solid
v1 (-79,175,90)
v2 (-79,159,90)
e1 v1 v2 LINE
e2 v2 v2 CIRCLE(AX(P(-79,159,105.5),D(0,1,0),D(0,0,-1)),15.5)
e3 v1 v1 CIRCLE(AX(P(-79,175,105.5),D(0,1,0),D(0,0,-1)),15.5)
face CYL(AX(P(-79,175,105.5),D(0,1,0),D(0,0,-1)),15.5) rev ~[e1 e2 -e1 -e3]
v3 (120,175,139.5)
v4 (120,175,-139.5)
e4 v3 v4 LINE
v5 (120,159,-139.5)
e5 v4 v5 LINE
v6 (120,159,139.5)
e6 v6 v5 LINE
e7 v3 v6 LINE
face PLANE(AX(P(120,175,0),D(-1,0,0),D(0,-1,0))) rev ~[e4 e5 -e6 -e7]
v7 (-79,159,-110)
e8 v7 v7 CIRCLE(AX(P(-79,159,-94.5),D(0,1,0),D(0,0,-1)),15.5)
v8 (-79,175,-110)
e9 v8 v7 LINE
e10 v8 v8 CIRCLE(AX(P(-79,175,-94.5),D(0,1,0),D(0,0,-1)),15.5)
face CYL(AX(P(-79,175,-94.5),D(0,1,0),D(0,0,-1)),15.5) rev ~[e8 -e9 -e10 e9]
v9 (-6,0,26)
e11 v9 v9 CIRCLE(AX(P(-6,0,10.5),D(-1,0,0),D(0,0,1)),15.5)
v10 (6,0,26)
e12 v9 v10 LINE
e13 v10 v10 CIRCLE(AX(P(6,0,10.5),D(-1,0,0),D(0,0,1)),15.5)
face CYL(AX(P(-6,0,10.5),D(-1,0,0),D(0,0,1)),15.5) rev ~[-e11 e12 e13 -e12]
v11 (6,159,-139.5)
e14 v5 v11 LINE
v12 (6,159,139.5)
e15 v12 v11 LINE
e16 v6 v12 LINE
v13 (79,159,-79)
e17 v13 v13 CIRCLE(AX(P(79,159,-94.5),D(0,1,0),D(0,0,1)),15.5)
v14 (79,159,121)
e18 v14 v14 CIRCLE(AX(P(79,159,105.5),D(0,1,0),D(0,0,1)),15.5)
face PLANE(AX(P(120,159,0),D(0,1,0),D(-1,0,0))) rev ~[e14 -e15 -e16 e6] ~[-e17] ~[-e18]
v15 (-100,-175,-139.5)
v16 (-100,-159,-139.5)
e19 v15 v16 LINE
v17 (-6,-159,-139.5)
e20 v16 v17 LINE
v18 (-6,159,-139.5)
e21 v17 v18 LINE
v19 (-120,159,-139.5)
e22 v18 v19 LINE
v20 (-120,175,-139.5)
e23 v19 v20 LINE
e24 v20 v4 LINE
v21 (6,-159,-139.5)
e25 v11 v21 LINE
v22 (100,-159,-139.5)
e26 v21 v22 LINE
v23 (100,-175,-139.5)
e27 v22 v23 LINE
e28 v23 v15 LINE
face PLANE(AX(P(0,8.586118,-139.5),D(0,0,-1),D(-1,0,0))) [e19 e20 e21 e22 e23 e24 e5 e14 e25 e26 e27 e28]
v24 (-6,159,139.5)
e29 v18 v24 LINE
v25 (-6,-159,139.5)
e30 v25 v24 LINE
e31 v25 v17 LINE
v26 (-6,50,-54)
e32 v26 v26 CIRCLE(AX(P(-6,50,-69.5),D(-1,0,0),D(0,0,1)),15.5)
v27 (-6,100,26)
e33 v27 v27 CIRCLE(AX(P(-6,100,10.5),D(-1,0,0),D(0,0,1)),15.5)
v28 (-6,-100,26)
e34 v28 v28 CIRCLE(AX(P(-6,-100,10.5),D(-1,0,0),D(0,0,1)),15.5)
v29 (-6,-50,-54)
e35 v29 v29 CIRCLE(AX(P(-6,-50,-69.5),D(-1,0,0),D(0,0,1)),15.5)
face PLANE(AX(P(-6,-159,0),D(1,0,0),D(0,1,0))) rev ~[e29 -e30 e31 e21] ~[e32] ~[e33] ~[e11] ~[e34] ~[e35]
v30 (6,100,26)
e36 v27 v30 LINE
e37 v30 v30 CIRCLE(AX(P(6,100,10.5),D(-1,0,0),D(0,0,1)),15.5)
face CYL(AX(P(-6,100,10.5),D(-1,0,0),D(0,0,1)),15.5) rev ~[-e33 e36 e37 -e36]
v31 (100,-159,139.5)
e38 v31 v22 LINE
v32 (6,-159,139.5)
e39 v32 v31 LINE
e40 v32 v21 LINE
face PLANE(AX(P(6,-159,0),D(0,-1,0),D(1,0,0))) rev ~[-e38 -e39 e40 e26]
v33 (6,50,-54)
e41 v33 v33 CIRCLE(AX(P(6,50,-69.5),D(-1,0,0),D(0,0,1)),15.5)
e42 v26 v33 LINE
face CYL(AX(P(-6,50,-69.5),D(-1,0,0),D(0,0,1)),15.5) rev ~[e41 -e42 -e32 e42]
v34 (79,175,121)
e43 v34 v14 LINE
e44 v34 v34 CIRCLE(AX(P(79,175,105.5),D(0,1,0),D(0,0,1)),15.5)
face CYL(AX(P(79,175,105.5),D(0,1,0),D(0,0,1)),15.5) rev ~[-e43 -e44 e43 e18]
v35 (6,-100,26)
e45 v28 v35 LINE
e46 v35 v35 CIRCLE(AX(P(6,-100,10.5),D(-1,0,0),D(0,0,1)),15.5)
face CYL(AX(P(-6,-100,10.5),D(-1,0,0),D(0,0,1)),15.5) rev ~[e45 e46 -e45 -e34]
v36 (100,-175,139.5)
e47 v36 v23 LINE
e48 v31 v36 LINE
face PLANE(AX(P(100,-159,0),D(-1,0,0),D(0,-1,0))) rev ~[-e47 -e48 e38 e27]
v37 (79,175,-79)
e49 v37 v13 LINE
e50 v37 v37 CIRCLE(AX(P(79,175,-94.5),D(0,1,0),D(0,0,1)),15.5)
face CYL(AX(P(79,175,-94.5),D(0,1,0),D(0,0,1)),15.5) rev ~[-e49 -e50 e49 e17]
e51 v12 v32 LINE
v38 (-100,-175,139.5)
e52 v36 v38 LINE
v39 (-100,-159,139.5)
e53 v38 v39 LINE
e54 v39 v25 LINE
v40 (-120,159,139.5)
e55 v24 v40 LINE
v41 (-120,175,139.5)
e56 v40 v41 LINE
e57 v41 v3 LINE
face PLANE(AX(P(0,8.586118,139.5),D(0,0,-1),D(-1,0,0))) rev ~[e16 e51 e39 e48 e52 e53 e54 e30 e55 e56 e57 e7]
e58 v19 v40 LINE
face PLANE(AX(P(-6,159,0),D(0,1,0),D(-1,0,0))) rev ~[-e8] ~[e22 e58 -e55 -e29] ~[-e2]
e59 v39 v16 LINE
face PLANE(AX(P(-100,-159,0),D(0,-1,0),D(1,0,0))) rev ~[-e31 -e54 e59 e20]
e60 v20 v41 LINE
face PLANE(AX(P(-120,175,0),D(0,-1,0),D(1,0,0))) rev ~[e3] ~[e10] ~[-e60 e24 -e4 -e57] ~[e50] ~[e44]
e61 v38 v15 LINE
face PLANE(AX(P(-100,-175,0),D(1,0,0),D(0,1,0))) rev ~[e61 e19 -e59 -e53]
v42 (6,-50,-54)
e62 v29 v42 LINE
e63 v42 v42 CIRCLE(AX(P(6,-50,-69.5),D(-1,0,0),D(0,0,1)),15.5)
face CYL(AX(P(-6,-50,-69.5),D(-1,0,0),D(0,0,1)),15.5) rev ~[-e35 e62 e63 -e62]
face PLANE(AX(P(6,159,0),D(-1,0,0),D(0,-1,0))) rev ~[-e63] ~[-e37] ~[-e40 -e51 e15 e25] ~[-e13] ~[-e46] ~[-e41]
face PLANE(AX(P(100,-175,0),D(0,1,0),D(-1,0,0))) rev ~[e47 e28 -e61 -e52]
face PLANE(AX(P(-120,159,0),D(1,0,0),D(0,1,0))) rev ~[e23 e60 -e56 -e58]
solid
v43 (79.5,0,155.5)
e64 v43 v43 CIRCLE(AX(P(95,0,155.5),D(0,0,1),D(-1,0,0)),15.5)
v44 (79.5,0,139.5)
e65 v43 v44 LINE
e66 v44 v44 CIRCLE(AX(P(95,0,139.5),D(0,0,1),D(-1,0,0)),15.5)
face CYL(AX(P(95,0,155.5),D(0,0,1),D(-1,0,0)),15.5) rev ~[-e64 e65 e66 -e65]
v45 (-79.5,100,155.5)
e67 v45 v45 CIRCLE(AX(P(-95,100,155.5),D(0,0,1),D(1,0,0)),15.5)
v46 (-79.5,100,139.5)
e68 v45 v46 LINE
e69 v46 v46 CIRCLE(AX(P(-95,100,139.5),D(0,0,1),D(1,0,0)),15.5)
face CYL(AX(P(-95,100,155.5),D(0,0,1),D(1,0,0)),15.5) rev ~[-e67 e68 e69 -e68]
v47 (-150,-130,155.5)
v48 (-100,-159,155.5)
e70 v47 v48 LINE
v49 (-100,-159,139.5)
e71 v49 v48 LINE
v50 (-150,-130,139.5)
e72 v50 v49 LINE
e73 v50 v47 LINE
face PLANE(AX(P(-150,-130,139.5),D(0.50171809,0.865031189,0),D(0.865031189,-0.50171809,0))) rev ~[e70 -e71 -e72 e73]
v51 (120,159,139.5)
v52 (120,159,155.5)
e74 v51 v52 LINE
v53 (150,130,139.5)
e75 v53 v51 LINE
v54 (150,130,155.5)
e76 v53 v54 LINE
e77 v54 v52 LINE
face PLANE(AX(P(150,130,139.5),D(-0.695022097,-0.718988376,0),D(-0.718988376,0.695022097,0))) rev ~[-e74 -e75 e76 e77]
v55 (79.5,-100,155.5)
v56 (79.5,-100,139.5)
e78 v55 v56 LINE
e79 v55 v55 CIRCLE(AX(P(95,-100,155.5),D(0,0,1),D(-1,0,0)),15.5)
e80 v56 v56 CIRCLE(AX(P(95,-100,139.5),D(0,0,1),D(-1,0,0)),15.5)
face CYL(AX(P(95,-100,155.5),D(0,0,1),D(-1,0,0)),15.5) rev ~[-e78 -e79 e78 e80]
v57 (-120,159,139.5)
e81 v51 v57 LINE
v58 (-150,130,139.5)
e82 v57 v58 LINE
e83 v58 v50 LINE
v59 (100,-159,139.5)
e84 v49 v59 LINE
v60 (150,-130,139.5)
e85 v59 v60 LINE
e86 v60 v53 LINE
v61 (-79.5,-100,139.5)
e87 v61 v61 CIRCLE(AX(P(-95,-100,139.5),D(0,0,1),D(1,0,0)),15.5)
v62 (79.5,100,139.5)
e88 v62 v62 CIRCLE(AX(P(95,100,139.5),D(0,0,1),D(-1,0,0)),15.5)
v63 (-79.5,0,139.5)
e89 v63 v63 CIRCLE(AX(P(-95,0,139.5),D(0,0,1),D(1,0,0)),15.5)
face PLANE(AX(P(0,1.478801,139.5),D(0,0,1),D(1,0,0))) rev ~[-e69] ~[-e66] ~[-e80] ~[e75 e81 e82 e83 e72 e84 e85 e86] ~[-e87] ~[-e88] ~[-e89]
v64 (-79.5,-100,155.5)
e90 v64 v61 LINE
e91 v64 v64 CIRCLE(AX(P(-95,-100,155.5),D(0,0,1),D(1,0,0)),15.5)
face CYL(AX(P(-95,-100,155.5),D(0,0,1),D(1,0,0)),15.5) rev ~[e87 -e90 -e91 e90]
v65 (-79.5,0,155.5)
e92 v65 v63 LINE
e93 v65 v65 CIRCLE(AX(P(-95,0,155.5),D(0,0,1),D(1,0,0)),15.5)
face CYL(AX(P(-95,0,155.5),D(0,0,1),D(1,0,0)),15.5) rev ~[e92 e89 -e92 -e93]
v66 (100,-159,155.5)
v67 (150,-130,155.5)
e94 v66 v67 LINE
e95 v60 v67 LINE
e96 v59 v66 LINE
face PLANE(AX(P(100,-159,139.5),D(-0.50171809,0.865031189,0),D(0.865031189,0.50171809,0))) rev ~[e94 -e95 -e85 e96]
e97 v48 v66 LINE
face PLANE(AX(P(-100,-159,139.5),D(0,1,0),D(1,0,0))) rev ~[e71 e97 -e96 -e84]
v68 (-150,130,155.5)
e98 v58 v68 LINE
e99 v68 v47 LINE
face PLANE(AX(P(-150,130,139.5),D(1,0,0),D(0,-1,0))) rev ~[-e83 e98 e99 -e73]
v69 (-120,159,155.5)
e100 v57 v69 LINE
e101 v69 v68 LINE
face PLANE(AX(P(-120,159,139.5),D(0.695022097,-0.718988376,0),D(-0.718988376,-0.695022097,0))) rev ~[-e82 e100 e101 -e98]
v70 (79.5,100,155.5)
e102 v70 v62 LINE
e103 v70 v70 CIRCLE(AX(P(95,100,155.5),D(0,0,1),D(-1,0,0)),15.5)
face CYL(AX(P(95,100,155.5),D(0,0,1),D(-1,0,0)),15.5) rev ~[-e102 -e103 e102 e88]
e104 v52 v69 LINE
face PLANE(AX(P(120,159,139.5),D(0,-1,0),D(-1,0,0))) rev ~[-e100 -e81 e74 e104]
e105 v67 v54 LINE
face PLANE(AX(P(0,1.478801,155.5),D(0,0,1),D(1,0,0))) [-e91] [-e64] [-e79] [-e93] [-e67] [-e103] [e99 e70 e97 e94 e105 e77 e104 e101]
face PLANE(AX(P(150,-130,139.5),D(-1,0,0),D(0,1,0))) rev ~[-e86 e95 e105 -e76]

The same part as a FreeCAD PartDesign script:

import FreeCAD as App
import Part
import Sketcher

doc = App.newDocument("Part")
body = doc.addObject("PartDesign::Body", "Body")

sketch1 = body.newObject("Sketcher::SketchObject", "Sketch")
sketch1.AttachmentSupport = (doc.getObject("XY_Plane"), [""])
sketch1.MapMode = "FlatFace"
sketch1.addGeometry([
    Part.LineSegment(App.Vector(120, 175, 0), App.Vector(-120, 175, 0)),
    Part.LineSegment(App.Vector(-120, 175, 0), App.Vector(-120, 159, 0)),
    Part.LineSegment(App.Vector(-120, 159, 0), App.Vector(-6, 159, 0)),
    Part.LineSegment(App.Vector(-6, 159, 0), App.Vector(-6, -159, 0)),
    Part.LineSegment(App.Vector(-6, -159, 0), App.Vector(-100, -159, 0)),
    Part.LineSegment(App.Vector(-100, -159, 0), App.Vector(-100, -175, 0)),
    Part.LineSegment(App.Vector(-100, -175, 0), App.Vector(100, -175, 0)),
    Part.LineSegment(App.Vector(100, -175, 0), App.Vector(100, -159, 0)),
    Part.LineSegment(App.Vector(100, -159, 0), App.Vector(6, -159, 0)),
    Part.LineSegment(App.Vector(6, -159, 0), App.Vector(6, 159, 0)),
    Part.LineSegment(App.Vector(6, 159, 0), App.Vector(120, 159, 0)),
    Part.LineSegment(App.Vector(120, 159, 0), App.Vector(120, 175, 0)),
], False)
sketch1.addConstraint([
    Sketcher.Constraint("Coincident", 0, 2, 1, 1),
    Sketcher.Constraint("Coincident", 1, 2, 2, 1),
    Sketcher.Constraint("Coincident", 2, 2, 3, 1),
    Sketcher.Constraint("Coincident", 3, 2, 4, 1),
    Sketcher.Constraint("Coincident", 4, 2, 5, 1),
    Sketcher.Constraint("Coincident", 5, 2, 6, 1),
    Sketcher.Constraint("Coincident", 6, 2, 7, 1),
    Sketcher.Constraint("Coincident", 7, 2, 8, 1),
    Sketcher.Constraint("Coincident", 8, 2, 9, 1),
    Sketcher.Constraint("Coincident", 9, 2, 10, 1),
    Sketcher.Constraint("Coincident", 10, 2, 11, 1),
    Sketcher.Constraint("Coincident", 11, 2, 0, 1),
    Sketcher.Constraint("Horizontal", 0),
    Sketcher.Constraint("Vertical", 1),
    Sketcher.Constraint("Horizontal", 2),
    Sketcher.Constraint("Vertical", 3),
    Sketcher.Constraint("Horizontal", 4),
    Sketcher.Constraint("Vertical", 5),
    Sketcher.Constraint("Horizontal", 6),
    Sketcher.Constraint("Vertical", 7),
    Sketcher.Constraint("Horizontal", 8),
    Sketcher.Constraint("Vertical", 9),
    Sketcher.Constraint("Horizontal", 10),
    Sketcher.Constraint("Vertical", 11),
    Sketcher.Constraint("Symmetric", 2, 2, 8, 2, -1, 1),
    Sketcher.Constraint("Symmetric", 4, 2, 7, 2, -2),
    Sketcher.Constraint("Symmetric", 1, 2, 10, 2, -2),
    Sketcher.Constraint("Equal", 1, 5),
    Sketcher.Constraint("DistanceX", 0, 2, 0, 1, 240.0),
    Sketcher.Constraint("DistanceX", 2, 1, 2, 2, 114.0),
    Sketcher.Constraint("DistanceX", 4, 2, 4, 1, 94.0),
    Sketcher.Constraint("DistanceY", 1, 2, 1, 1, 16.0),
    Sketcher.Constraint("DistanceY", 3, 2, 3, 1, 318.0),
])
pad1 = body.newObject("PartDesign::Pad", "Pad")
pad1.Profile = sketch1
pad1.Length = 279
pad1.Midplane = True

sketch2 = body.newObject("Sketcher::SketchObject", "Sketch001")
sketch2.AttachmentSupport = (doc.getObject("YZ_Plane"), [""])
sketch2.MapMode = "FlatFace"
sketch2.AttachmentOffset = App.Placement(App.Vector(0, 0, -6), App.Rotation())
sketch2.addGeometry([
    Part.Circle(App.Vector(100, 10, 0), App.Vector(0, 0, 1), 16),
    Part.Circle(App.Vector(0, 10, 0), App.Vector(0, 0, 1), 16),
    Part.Circle(App.Vector(-100, 10, 0), App.Vector(0, 0, 1), 16),
    Part.Circle(App.Vector(50, -70, 0), App.Vector(0, 0, 1), 16),
    Part.Circle(App.Vector(-50, -70, 0), App.Vector(0, 0, 1), 16),
], False)
sketch2.addConstraint([
    Sketcher.Constraint("Equal", 0, 1),
    Sketcher.Constraint("Equal", 1, 2),
    Sketcher.Constraint("Equal", 2, 3),
    Sketcher.Constraint("Equal", 3, 4),
    Sketcher.Constraint("Symmetric", 0, 3, 2, 3, -2),
    Sketcher.Constraint("Symmetric", 3, 3, 4, 3, -2),
    Sketcher.Constraint("PointOnObject", 1, 3, -2),
    Sketcher.Constraint("Horizontal", 0, 3, 1, 3),
    Sketcher.Constraint("Diameter", 0, 31.0),
    Sketcher.Constraint("DistanceX", -1, 1, 0, 3, 100.0),
    Sketcher.Constraint("DistanceX", -1, 1, 3, 3, 50.0),
    Sketcher.Constraint("DistanceY", 3, 3, 0, 3, 80.0),
    Sketcher.Constraint("DistanceY", -1, 1, 0, 3, 10.5),
])
pocket1 = body.newObject("PartDesign::Pocket", "Pocket")
pocket1.Profile = sketch2
pocket1.Length = 16
pocket1.Reversed = True

sketch3 = body.newObject("Sketcher::SketchObject", "Sketch002")
sketch3.AttachmentSupport = (doc.getObject("XZ_Plane"), [""])
sketch3.MapMode = "FlatFace"
sketch3.AttachmentOffset = App.Placement(App.Vector(0, 0, -175), App.Rotation())
sketch3.addGeometry([
    Part.Circle(App.Vector(79, 106, 0), App.Vector(0, 0, 1), 16),
    Part.Circle(App.Vector(79, -94, 0), App.Vector(0, 0, 1), 16),
    Part.Circle(App.Vector(-79, -94, 0), App.Vector(0, 0, 1), 16),
    Part.Circle(App.Vector(-79, 106, 0), App.Vector(0, 0, 1), 16),
], False)
sketch3.addConstraint([
    Sketcher.Constraint("Equal", 0, 1),
    Sketcher.Constraint("Equal", 1, 2),
    Sketcher.Constraint("Equal", 2, 3),
    Sketcher.Constraint("Symmetric", 1, 3, 2, 3, -2),
    Sketcher.Constraint("Symmetric", 0, 3, 3, 3, -2),
    Sketcher.Constraint("Vertical", 0, 3, 1, 3),
    Sketcher.Constraint("Diameter", 0, 31.0),
    Sketcher.Constraint("DistanceX", -1, 1, 0, 3, 79.0),
    Sketcher.Constraint("DistanceY", 1, 3, 0, 3, 200.0),
    Sketcher.Constraint("DistanceY", -1, 1, 0, 3, 105.5),
])
pocket2 = body.newObject("PartDesign::Pocket", "Pocket001")
pocket2.Profile = sketch3
pocket2.Length = 16
pocket2.Reversed = True
body2 = doc.addObject("PartDesign::Body", "Body001")

sketch4 = body2.newObject("Sketcher::SketchObject", "Sketch003")
sketch4.AttachmentSupport = (doc.getObject("XY_Plane001"), [""])
sketch4.MapMode = "FlatFace"
sketch4.AttachmentOffset = App.Placement(App.Vector(0, 0, 139.5), App.Rotation())
sketch4.addGeometry([
    Part.LineSegment(App.Vector(-150, 130, 0), App.Vector(-150, -130, 0)),
    Part.LineSegment(App.Vector(-150, -130, 0), App.Vector(-100, -159, 0)),
    Part.LineSegment(App.Vector(-100, -159, 0), App.Vector(100, -159, 0)),
    Part.LineSegment(App.Vector(100, -159, 0), App.Vector(150, -130, 0)),
    Part.LineSegment(App.Vector(150, -130, 0), App.Vector(150, 130, 0)),
    Part.LineSegment(App.Vector(150, 130, 0), App.Vector(120, 159, 0)),
    Part.LineSegment(App.Vector(120, 159, 0), App.Vector(-120, 159, 0)),
    Part.LineSegment(App.Vector(-120, 159, 0), App.Vector(-150, 130, 0)),
], False)
sketch4.addConstraint([
    Sketcher.Constraint("Coincident", 0, 2, 1, 1),
    Sketcher.Constraint("Coincident", 1, 2, 2, 1),
    Sketcher.Constraint("Coincident", 2, 2, 3, 1),
    Sketcher.Constraint("Coincident", 3, 2, 4, 1),
    Sketcher.Constraint("Coincident", 4, 2, 5, 1),
    Sketcher.Constraint("Coincident", 5, 2, 6, 1),
    Sketcher.Constraint("Coincident", 6, 2, 7, 1),
    Sketcher.Constraint("Coincident", 7, 2, 0, 1),
    Sketcher.Constraint("Vertical", 0),
    Sketcher.Constraint("Horizontal", 2),
    Sketcher.Constraint("Vertical", 4),
    Sketcher.Constraint("Horizontal", 6),
    Sketcher.Constraint("Symmetric", 0, 2, 4, 2, -1, 1),
    Sketcher.Constraint("Horizontal", 0, 2, 3, 2),
    Sketcher.Constraint("Horizontal", 4, 2, 7, 2),
    Sketcher.Constraint("Equal", 1, 3),
    Sketcher.Constraint("Equal", 5, 7),
    Sketcher.Constraint("DistanceX", 2, 1, 2, 2, 200.0),
    Sketcher.Constraint("DistanceX", 6, 2, 6, 1, 240.0),
    Sketcher.Constraint("DistanceY", 0, 2, 0, 1, 260.0),
    Sketcher.Constraint("DistanceX", 0, 2, -1, 1, 150.0),
    Sketcher.Constraint("DistanceY", 1, 2, -1, 1, 159.0),
    Sketcher.Constraint("DistanceY", -1, 1, 5, 2, 159.0),
])
pad2 = body2.newObject("PartDesign::Pad", "Pad001")
pad2.Profile = sketch4
pad2.Length = 16

sketch5 = body2.newObject("Sketcher::SketchObject", "Sketch004")
sketch5.AttachmentSupport = (doc.getObject("XY_Plane001"), [""])
sketch5.MapMode = "FlatFace"
sketch5.AttachmentOffset = App.Placement(App.Vector(0, 0, 155.5), App.Rotation())
sketch5.addGeometry([
    Part.Circle(App.Vector(-95, 100, 0), App.Vector(0, 0, 1), 16),
    Part.Circle(App.Vector(-95, 0, 0), App.Vector(0, 0, 1), 16),
    Part.Circle(App.Vector(-95, -100, 0), App.Vector(0, 0, 1), 16),
    Part.Circle(App.Vector(95, -100, 0), App.Vector(0, 0, 1), 16),
    Part.Circle(App.Vector(95, 0, 0), App.Vector(0, 0, 1), 16),
    Part.Circle(App.Vector(95, 100, 0), App.Vector(0, 0, 1), 16),
], False)
sketch5.addConstraint([
    Sketcher.Constraint("Equal", 0, 1),
    Sketcher.Constraint("Equal", 1, 2),
    Sketcher.Constraint("Equal", 2, 3),
    Sketcher.Constraint("Equal", 3, 4),
    Sketcher.Constraint("Equal", 4, 5),
    Sketcher.Constraint("Symmetric", 0, 3, 3, 3, -1, 1),
    Sketcher.Constraint("Symmetric", 1, 3, 4, 3, -1, 1),
    Sketcher.Constraint("Symmetric", 2, 3, 5, 3, -1, 1),
    Sketcher.Constraint("Symmetric", 2, 3, 3, 3, -2),
    Sketcher.Constraint("PointOnObject", 1, 3, -1),
    Sketcher.Constraint("Vertical", 0, 3, 1, 3),
    Sketcher.Constraint("Diameter", 0, 31.0),
    Sketcher.Constraint("DistanceX", 0, 3, -1, 1, 95.0),
    Sketcher.Constraint("DistanceY", -1, 1, 0, 3, 100.0),
])
pocket3 = body2.newObject("PartDesign::Pocket", "Pocket002")
pocket3.Profile = sketch5
pocket3.Type = "ThroughAll"

doc.recompute()
